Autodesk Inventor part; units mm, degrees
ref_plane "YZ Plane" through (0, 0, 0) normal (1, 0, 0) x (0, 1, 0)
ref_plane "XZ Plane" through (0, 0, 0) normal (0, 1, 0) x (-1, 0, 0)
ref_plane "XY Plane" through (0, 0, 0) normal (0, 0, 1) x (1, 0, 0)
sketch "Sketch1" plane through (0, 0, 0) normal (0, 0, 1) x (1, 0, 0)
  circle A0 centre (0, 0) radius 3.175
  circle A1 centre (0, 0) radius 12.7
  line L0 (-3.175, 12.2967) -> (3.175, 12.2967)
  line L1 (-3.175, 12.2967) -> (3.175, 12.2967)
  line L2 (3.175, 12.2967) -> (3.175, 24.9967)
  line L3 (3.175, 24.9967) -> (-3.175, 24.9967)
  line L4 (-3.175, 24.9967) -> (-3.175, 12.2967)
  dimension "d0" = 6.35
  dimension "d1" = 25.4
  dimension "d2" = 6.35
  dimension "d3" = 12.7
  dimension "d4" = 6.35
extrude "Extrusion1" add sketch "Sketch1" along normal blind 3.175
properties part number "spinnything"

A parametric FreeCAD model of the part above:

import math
import FreeCAD as App
import Part
import Sketcher
Q = App.Units.Quantity

doc = App.newDocument("Part")
params = doc.addObject("Spreadsheet::Sheet", "Params")
for row, (alias, value) in enumerate([
    ("sketch1_radius", "0.5 in"),
    ("sketch1_diameter", "0.25 in"),
    ("sketch1_height", "0.5 in"),
    ("sketch1_width", "0.25 in"),
    ("pad1_length", "0.125 in"),
], start=1):
    params.set(f"A{row}", alias)
    params.set(f"B{row}", "=" + value)
    params.setAlias(f"B{row}", alias)

body = doc.addObject("PartDesign::Body", "Body")

sketch1 = body.newObject("Sketcher::SketchObject", "Sketch")
sketch1.AttachmentSupport = (doc.getObject("XY_Plane"), [""])
sketch1.MapMode = "FlatFace"
sketch1.addGeometry([
    Part.ArcOfCircle(Part.Circle(App.Vector(0, 0, 0), App.Vector(0, 0, 1), 12.7), math.radians(104), math.radians(436)),
    Part.LineSegment(App.Vector(3.2, 12.3, 0), App.Vector(3.2, 25, 0)),
    Part.LineSegment(App.Vector(3.2, 25, 0), App.Vector(-3.2, 25, 0)),
    Part.LineSegment(App.Vector(-3.2, 25, 0), App.Vector(-3.2, 12.3, 0)),
    Part.Circle(App.Vector(0, 0, 0), App.Vector(0, 0, 1), 3.2),
], False)
sketch1.addConstraint([
    Sketcher.Constraint("Coincident", 0, 2, 1, 1),
    Sketcher.Constraint("Coincident", 1, 2, 2, 1),
    Sketcher.Constraint("Coincident", 2, 2, 3, 1),
    Sketcher.Constraint("Coincident", 3, 2, 0, 1),
    Sketcher.Constraint("Vertical", 1),
    Sketcher.Constraint("Horizontal", 2),
    Sketcher.Constraint("Vertical", 3),
    Sketcher.Constraint("Coincident", 0, 3, -1, 1),
    Sketcher.Constraint("Coincident", 4, 3, -1, 1),
    Sketcher.Constraint("Horizontal", 0, 2, 3, 2),
    Sketcher.Constraint("Radius", 0, Q("0.5 in")),
    Sketcher.Constraint("Diameter", 4, Q("0.25 in")),
    Sketcher.Constraint("DistanceY", 1, 1, 1, 2, Q("0.5 in")),
    Sketcher.Constraint("DistanceX", 2, 2, 2, 1, Q("0.25 in")),
])
sketch1.setExpression("Constraints[10]", "Params.sketch1_radius")
sketch1.setExpression("Constraints[11]", "Params.sketch1_diameter")
sketch1.setExpression("Constraints[12]", "Params.sketch1_height")
sketch1.setExpression("Constraints[13]", "Params.sketch1_width")
pad1 = body.newObject("PartDesign::Pad", "Pad")
pad1.Profile = sketch1
pad1.setExpression("Length", "Params.pad1_length")

doc.recompute()
